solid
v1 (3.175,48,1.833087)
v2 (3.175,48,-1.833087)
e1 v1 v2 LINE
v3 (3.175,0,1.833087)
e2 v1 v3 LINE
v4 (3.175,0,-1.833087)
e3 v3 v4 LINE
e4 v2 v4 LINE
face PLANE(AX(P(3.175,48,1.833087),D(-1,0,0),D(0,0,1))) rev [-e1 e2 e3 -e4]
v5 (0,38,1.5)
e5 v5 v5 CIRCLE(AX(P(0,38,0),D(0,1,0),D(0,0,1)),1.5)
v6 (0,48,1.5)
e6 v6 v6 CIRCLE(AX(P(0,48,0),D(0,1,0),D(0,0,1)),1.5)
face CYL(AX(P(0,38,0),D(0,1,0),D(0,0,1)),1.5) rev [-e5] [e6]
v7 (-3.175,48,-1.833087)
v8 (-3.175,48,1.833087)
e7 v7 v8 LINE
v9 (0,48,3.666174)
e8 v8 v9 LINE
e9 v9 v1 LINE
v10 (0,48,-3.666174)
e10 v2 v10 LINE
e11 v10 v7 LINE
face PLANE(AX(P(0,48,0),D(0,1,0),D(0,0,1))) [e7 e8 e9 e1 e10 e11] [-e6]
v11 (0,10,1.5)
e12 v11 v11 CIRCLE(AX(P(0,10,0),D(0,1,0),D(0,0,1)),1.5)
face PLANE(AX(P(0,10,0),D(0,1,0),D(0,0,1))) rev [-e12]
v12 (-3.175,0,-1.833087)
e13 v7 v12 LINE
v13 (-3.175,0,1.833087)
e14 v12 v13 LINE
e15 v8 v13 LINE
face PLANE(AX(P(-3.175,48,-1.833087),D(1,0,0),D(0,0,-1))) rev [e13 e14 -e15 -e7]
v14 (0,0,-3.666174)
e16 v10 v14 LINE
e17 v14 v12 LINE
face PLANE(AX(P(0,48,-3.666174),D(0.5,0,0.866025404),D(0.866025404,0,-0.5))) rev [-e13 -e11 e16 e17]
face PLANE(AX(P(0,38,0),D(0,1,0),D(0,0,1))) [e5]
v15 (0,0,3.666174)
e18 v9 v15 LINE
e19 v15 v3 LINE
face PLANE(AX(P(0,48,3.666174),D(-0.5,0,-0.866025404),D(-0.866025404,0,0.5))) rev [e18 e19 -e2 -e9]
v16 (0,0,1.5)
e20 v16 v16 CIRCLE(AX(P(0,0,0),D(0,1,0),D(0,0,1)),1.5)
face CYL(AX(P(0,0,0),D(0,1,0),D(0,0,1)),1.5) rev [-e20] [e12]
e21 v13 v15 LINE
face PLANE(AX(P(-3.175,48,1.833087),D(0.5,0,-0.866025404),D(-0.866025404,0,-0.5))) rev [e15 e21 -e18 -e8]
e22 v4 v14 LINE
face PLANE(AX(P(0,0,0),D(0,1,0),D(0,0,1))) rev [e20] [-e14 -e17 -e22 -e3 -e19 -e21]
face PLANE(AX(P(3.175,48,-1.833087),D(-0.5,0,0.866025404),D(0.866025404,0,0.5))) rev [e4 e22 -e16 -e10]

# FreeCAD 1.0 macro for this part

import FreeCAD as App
import Part
import Sketcher

V = App.Vector
Q = App.Units.Quantity

doc = App.newDocument("Part")
body = doc.addObject("PartDesign::Body", "Body")

# Sketch on XZ plane
sketch1 = body.newObject("Sketcher::SketchObject", "Sketch")
sketch1.AttachmentSupport = (doc.getObject("XZ_Plane"), [""])
sketch1.MapMode = "FlatFace"
sketch1.addGeometry([
    Part.LineSegment(V(0, -3.7, 0), V(-3.2, -1.8, 0)),  # 0
    Part.LineSegment(V(-3.2, -1.8, 0), V(-3.2, 1.8, 0)),  # 1
    Part.LineSegment(V(-3.2, 1.8, 0), V(0, 3.7, 0)),  # 2
    Part.LineSegment(V(0, 3.7, 0), V(3.2, 1.8, 0)),  # 3
    Part.LineSegment(V(3.2, 1.8, 0), V(3.2, -1.8, 0)),  # 4
    Part.LineSegment(V(3.2, -1.8, 0), V(0, -3.7, 0)),  # 5
], False)
sketch1.addConstraint([
    Sketcher.Constraint("Coincident", 0, 2, 1, 1),
    Sketcher.Constraint("Coincident", 1, 2, 2, 1),
    Sketcher.Constraint("Coincident", 2, 2, 3, 1),
    Sketcher.Constraint("Coincident", 3, 2, 4, 1),
    Sketcher.Constraint("Coincident", 4, 2, 5, 1),
    Sketcher.Constraint("Coincident", 5, 2, 0, 1),
    Sketcher.Constraint("Vertical", 1),
    Sketcher.Constraint("Vertical", 4),
    Sketcher.Constraint("Symmetric", 0, 2, 3, 2, -1, 1),
    Sketcher.Constraint("Symmetric", 2, 2, 5, 2, -1, 1),
    Sketcher.Constraint("PointOnObject", 2, 2, -2),
    Sketcher.Constraint("Parallel", 2, 5),
    Sketcher.Constraint("Horizontal", 1, 2, 3, 2),
    Sketcher.Constraint("Angle", 0, Q("150 deg")),
    Sketcher.Constraint("DistanceX", 1, 2, 3, 2, Q("6.35 mm")),
    Sketcher.Constraint("DistanceY", 1, 1, 1, 2, Q("3.666174 mm")),
])
pad1 = body.newObject("PartDesign::Pad", "Pad")
pad1.Profile = sketch1
pad1.Length = 48
pad1.Reversed = True

# Sketch on XZ plane
sketch2 = body.newObject("Sketcher::SketchObject", "Sketch001")
sketch2.AttachmentSupport = (doc.getObject("XZ_Plane"), [""])
sketch2.MapMode = "FlatFace"
sketch2.AttachmentOffset = App.Placement(V(0, 0, -48), App.Rotation())
sketch2.addGeometry(Part.Circle(V(0, 0, 0), V(0, 0, 1), 1.5), False)
sketch2.addConstraint([
    Sketcher.Constraint("Coincident", 0, 3, -1, 1),
    Sketcher.Constraint("Diameter", 0, Q("3 mm")),
])
pocket1 = body.newObject("PartDesign::Pocket", "Pocket")
pocket1.Profile = sketch2
pocket1.Length = 10
pocket1.Reversed = True

# Sketch on XZ plane
sketch3 = body.newObject("Sketcher::SketchObject", "Sketch002")
sketch3.AttachmentSupport = (doc.getObject("XZ_Plane"), [""])
sketch3.MapMode = "FlatFace"
sketch3.AttachmentOffset = App.Placement(V(0, 0, -10), App.Rotation())
sketch3.addGeometry(Part.Circle(V(0, 0, 0), V(0, 0, 1), 1.5), False)
sketch3.addConstraint([
    Sketcher.Constraint("Coincident", 0, 3, -1, 1),
    Sketcher.Constraint("Diameter", 0, Q("3 mm")),
])
pocket2 = body.newObject("PartDesign::Pocket", "Pocket001")
pocket2.Profile = sketch3
pocket2.Length = 10
pocket2.Reversed = True

doc.recompute()
